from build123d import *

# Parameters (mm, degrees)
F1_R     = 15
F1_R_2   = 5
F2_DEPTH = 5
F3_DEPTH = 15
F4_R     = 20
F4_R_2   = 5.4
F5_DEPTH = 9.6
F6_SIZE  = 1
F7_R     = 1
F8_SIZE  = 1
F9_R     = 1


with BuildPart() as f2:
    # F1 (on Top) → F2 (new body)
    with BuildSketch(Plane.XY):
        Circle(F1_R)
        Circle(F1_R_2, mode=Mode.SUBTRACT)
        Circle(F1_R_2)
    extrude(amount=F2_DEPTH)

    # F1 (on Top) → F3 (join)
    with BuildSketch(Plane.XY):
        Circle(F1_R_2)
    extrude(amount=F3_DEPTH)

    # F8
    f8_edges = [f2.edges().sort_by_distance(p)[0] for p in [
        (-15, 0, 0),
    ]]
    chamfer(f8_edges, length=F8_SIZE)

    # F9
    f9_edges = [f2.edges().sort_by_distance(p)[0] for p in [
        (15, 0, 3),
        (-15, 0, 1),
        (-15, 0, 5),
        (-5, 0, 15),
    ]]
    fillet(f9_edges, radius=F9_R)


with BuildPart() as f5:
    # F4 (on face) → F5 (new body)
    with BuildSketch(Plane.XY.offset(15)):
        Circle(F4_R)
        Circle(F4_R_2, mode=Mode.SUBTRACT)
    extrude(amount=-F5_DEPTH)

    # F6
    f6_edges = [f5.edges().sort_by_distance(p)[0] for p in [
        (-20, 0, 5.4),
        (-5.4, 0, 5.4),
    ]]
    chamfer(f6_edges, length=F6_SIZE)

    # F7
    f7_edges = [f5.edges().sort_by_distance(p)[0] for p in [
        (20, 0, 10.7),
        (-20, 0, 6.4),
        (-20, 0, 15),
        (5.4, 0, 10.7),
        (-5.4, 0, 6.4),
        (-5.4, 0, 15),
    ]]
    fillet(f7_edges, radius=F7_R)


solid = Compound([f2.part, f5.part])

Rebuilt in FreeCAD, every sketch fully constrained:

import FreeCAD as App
import Part
import Sketcher
from FreeCAD import Vector
Q = App.Units.Quantity


def edges_at(feature, points):
    """Names of the edges that pass closest to the given points."""
    edges = feature.Shape.Edges
    near = lambda p: min(range(len(edges)), key=lambda i: edges[i].distToShape(Part.Vertex(*p))[0])
    return sorted({f"Edge{near(p) + 1}" for p in points})

doc = App.newDocument("Part")
body = doc.addObject("PartDesign::Body", "Body")

# Sketch on XY plane
sketch1 = doc.addObject("Sketcher::SketchObject", "Sketch")
body.addObject(sketch1)
sketch1.AttachmentSupport = (doc.XY_Plane, [""])
sketch1.MapMode = "FlatFace"
sketch1.addGeometry(Part.Circle(Vector(0, 0, 0), Vector(0, 0, 1), 15), False)
sketch1.addConstraint(Sketcher.Constraint("Coincident", 0, 3, -1, 1))
sketch1.addConstraint(Sketcher.Constraint("Diameter", 0, Q("30 mm")))
pad1 = doc.addObject("PartDesign::Pad", "Pad")
body.addObject(pad1)
pad1.Profile = sketch1
pad1.Length = 5

# Sketch on XY plane
sketch2 = doc.addObject("Sketcher::SketchObject", "Sketch001")
body.addObject(sketch2)
sketch2.AttachmentSupport = (doc.XY_Plane, [""])
sketch2.MapMode = "FlatFace"
sketch2.addGeometry(Part.Circle(Vector(0, 0, 0), Vector(0, 0, 1), 5), False)
sketch2.addConstraint(Sketcher.Constraint("Coincident", 0, 3, -1, 1))
sketch2.addConstraint(Sketcher.Constraint("Diameter", 0, Q("10 mm")))
pad2 = doc.addObject("PartDesign::Pad", "Pad001")
body.addObject(pad2)
pad2.Profile = sketch2
pad2.Length = 15
doc.recompute()

chamfer = doc.addObject("PartDesign::Chamfer", "Chamfer")
body.addObject(chamfer)
chamfer.Base = (pad2, edges_at(pad2, [(-15, 0, 0)]))
chamfer.Size = 1
doc.recompute()

fillet = doc.addObject("PartDesign::Fillet", "Fillet")
body.addObject(fillet)
fillet.Base = (chamfer, edges_at(chamfer, [
    (15, 0, 3),
    (-15, 0, 1),
    (-15, 0, 5),
    (-5, 0, 15),
]))
fillet.Radius = 1
body2 = doc.addObject("PartDesign::Body", "Body001")

# Sketch on XY plane
sketch3 = doc.addObject("Sketcher::SketchObject", "Sketch002")
body2.addObject(sketch3)
sketch3.AttachmentSupport = (doc.getObject("XY_Plane001"), [""])
sketch3.MapMode = "FlatFace"
sketch3.AttachmentOffset = App.Placement(Vector(0, 0, 15), App.Rotation())
sketch3.addGeometry(Part.Circle(Vector(0, 0, 0), Vector(0, 0, 1), 20), False)
sketch3.addGeometry(Part.Circle(Vector(0, 0, 0), Vector(0, 0, 1), 5), False)
sketch3.addConstraint(Sketcher.Constraint("Coincident", 0, 3, -1, 1))
sketch3.addConstraint(Sketcher.Constraint("Coincident", 1, 3, -1, 1))
sketch3.addConstraint(Sketcher.Constraint("Diameter", 0, Q("40 mm")))
sketch3.addConstraint(Sketcher.Constraint("Diameter", 1, Q("10.8 mm")))
pad3 = doc.addObject("PartDesign::Pad", "Pad002")
body2.addObject(pad3)
pad3.Profile = sketch3
pad3.Length = 9.6
pad3.Reversed = True
doc.recompute()

chamfer2 = doc.addObject("PartDesign::Chamfer", "Chamfer001")
body2.addObject(chamfer2)
chamfer2.Base = (pad3, edges_at(pad3, [(-20, 0, 5.4), (-5.4, 0, 5.4)]))
chamfer2.Size = 1
doc.recompute()

fillet2 = doc.addObject("PartDesign::Fillet", "Fillet001")
body2.addObject(fillet2)
fillet2.Base = (chamfer2, edges_at(chamfer2, [
    (20, 0, 10.7),
    (-20, 0, 6.4),
    (-20, 0, 15),
    (5.4, 0, 10.7),
    (-5.4, 0, 6.4),
    (-5.4, 0, 15),
]))
fillet2.Radius = 1

doc.recompute()
